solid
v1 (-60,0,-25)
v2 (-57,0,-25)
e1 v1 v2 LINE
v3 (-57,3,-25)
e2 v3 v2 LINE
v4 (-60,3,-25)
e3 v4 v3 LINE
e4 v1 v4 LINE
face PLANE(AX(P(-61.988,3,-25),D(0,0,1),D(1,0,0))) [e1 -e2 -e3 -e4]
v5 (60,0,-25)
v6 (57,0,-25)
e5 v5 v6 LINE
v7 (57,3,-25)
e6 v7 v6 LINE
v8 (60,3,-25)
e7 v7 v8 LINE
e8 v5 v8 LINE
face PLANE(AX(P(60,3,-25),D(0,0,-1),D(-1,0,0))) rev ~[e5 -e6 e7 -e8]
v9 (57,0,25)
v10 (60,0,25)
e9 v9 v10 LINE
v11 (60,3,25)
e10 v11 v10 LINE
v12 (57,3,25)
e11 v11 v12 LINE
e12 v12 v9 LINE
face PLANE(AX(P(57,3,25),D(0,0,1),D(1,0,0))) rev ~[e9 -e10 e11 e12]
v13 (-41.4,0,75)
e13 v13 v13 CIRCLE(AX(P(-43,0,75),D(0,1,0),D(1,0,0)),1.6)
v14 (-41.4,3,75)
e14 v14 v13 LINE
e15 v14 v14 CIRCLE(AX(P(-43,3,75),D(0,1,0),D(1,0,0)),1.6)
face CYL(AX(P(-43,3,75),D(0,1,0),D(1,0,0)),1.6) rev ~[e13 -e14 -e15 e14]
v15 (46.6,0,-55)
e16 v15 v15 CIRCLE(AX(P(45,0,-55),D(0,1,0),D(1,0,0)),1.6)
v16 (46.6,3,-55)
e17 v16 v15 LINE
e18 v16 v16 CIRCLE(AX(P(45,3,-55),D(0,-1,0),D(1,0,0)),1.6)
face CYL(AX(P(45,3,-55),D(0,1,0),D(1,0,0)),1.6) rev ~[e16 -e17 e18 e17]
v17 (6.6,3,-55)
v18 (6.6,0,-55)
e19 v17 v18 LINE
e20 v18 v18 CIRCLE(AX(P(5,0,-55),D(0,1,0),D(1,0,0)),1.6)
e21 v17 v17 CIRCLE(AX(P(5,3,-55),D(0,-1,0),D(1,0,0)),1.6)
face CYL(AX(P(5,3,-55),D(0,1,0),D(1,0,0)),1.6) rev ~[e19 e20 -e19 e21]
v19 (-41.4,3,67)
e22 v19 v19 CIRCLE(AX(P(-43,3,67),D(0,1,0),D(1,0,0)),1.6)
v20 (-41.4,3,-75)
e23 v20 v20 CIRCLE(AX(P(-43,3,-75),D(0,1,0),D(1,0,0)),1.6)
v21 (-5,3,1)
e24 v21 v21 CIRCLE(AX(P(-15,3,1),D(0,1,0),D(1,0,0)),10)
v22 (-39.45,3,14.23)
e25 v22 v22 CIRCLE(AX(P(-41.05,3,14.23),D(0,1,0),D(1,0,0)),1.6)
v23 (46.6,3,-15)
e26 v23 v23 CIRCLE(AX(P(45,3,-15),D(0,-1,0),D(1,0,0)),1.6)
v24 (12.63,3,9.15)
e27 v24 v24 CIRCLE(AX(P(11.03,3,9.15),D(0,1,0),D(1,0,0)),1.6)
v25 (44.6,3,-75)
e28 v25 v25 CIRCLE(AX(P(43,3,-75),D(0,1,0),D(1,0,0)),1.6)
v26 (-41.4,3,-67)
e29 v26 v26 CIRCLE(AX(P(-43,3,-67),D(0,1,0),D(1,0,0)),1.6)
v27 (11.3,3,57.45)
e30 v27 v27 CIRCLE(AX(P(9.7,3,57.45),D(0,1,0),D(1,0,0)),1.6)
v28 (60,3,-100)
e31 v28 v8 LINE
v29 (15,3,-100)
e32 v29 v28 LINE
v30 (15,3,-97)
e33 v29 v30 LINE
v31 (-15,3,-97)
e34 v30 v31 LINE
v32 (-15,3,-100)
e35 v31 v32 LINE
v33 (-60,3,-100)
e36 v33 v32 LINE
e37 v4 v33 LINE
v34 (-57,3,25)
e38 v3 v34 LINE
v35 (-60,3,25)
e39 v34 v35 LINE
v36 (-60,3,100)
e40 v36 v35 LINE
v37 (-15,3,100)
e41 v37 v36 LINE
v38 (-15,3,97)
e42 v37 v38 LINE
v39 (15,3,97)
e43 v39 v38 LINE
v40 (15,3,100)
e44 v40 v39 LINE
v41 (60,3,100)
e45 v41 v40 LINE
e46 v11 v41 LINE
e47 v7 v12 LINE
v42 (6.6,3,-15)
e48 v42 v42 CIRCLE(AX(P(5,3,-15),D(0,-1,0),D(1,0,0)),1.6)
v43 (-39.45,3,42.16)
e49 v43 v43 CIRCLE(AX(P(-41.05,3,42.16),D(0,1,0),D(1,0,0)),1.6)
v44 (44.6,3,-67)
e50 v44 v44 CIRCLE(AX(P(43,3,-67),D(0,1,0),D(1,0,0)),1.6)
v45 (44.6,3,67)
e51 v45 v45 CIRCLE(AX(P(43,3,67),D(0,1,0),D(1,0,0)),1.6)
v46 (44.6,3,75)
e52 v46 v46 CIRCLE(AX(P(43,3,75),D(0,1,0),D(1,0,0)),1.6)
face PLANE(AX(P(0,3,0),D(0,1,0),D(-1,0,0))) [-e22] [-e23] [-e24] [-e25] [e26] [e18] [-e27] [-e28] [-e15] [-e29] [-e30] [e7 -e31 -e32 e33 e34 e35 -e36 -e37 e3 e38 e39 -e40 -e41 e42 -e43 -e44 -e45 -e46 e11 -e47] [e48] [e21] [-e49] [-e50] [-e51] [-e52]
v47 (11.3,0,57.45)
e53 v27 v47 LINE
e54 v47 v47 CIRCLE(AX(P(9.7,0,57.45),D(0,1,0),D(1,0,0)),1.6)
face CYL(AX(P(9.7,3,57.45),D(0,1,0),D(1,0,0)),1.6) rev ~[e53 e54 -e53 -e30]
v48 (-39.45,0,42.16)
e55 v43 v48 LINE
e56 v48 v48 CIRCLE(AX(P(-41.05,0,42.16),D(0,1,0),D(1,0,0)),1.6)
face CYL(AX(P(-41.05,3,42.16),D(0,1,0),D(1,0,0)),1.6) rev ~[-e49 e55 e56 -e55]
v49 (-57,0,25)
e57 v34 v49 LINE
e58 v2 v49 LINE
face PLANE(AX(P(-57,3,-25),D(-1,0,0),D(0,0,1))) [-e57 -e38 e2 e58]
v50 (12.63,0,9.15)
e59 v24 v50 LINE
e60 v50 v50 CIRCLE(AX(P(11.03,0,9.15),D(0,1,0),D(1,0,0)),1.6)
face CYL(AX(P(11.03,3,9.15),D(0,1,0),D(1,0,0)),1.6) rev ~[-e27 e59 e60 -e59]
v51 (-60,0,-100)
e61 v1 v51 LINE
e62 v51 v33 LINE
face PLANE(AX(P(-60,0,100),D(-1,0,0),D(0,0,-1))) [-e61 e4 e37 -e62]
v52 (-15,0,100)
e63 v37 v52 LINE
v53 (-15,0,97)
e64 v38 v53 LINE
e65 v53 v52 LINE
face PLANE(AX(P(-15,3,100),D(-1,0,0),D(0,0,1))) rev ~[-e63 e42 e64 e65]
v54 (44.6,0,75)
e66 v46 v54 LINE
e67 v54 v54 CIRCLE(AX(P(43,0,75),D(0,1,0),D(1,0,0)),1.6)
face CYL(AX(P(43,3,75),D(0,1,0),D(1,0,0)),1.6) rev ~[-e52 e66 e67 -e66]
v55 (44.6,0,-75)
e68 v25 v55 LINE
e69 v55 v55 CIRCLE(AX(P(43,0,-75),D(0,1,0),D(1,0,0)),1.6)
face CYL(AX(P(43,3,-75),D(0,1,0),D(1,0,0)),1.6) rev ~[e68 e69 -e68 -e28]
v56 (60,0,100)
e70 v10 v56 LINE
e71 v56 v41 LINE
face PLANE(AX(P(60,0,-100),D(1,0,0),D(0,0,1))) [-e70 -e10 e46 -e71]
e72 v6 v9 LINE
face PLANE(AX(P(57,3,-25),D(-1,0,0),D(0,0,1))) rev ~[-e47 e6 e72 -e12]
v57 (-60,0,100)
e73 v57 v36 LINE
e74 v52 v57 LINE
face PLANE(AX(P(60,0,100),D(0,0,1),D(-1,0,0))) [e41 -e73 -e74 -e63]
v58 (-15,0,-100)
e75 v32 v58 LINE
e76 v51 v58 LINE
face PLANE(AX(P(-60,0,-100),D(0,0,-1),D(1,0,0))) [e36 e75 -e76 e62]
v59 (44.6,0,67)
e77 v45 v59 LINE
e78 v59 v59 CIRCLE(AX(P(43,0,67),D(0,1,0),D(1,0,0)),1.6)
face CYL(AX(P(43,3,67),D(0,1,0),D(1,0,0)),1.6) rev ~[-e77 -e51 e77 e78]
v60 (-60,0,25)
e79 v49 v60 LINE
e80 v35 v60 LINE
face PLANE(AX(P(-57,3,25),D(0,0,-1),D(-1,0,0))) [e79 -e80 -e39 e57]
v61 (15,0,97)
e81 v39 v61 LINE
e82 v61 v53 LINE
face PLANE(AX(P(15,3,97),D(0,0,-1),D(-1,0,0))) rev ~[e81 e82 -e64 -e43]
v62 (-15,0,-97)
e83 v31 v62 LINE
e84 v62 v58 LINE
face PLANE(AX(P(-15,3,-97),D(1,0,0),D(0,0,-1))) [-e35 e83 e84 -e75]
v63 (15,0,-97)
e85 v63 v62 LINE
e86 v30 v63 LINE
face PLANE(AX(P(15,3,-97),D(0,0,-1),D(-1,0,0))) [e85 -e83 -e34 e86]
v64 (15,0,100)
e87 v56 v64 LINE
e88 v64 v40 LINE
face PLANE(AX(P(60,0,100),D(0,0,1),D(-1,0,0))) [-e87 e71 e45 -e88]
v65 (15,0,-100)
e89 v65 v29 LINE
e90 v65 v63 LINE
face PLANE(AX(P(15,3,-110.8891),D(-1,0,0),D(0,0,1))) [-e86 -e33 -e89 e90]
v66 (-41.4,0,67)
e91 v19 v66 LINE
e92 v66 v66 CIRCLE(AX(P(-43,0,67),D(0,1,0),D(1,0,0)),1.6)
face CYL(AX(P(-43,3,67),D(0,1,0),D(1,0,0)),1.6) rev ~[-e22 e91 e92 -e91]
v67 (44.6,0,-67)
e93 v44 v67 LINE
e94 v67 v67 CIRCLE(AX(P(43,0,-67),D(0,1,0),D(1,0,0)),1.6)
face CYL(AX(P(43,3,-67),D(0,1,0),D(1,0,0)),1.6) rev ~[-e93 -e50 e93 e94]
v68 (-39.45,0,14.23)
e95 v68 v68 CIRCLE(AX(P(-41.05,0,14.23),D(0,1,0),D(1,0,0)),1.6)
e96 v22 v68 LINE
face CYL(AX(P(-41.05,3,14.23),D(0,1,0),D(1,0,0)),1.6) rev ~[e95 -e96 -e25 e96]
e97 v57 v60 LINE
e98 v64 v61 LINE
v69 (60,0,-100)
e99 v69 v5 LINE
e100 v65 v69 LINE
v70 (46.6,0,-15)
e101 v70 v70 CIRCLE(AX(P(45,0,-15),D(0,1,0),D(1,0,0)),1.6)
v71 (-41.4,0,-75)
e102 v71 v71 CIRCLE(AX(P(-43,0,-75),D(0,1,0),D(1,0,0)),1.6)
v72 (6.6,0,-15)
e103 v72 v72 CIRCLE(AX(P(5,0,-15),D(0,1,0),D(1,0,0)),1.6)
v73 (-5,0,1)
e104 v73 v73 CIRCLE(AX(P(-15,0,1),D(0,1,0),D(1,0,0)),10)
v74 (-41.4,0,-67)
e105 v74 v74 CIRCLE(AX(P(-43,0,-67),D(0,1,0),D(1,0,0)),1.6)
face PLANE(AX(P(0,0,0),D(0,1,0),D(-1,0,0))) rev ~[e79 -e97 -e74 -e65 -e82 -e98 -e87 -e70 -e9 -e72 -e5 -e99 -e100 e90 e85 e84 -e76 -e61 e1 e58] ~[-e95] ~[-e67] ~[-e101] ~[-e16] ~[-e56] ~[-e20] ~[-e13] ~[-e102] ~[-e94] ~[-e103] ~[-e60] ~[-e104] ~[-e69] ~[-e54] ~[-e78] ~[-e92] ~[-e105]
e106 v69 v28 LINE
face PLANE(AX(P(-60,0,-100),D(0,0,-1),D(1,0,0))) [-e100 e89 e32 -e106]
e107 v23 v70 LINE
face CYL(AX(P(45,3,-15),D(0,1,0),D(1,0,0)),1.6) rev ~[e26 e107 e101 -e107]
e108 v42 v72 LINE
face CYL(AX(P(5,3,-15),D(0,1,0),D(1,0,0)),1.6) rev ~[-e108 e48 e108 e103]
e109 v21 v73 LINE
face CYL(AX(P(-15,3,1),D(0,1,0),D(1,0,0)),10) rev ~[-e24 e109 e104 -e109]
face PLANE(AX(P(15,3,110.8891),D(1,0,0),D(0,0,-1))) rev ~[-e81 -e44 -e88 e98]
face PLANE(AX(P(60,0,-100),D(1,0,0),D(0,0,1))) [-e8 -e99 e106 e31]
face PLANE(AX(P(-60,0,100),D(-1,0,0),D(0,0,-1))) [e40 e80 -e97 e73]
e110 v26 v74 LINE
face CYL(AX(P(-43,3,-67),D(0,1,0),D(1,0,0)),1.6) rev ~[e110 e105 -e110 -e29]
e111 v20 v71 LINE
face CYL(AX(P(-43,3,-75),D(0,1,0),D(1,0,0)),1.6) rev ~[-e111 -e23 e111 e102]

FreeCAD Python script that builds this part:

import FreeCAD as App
import Part
import Sketcher
from FreeCAD import Vector
Q = App.Units.Quantity

doc = App.newDocument("Part")
params = doc.addObject("Spreadsheet::Sheet", "Params")
for row, (alias, value) in enumerate([
    ("sketch1_width", "120 mm"),
    ("sketch1_height", "200 mm"),
    ("pad1_length", "3 mm"),
    ("sketch2_diameter", "3.2 mm"),
    ("sketch3_diameter", "20 mm"),
    ("sketch3_diameter2", "3.2 mm"),
    ("sketch4_height", "50 mm"),
    ("sketch5_width", "30 mm"),
    ("sketch6_diameter", "3.2 mm"),
], start=1):
    params.set(f"A{row}", alias)
    params.set(f"B{row}", "=" + value)
    params.setAlias(f"B{row}", alias)

body = doc.addObject("PartDesign::Body", "Body")

# Sketch on XZ plane
sketch1 = body.newObject("Sketcher::SketchObject", "Sketch")
sketch1.AttachmentSupport = (doc.getObject("XZ_Plane"), [""])
sketch1.MapMode = "FlatFace"
sketch1.addGeometry([
    Part.LineSegment(Vector(60, -100, 0), Vector(-60, -100, 0)),
    Part.LineSegment(Vector(-60, -100, 0), Vector(-60, 100, 0)),
    Part.LineSegment(Vector(-60, 100, 0), Vector(60, 100, 0)),
    Part.LineSegment(Vector(60, 100, 0), Vector(60, -100, 0)),
], False)
sketch1.addConstraint([
    Sketcher.Constraint("Coincident", 0, 2, 1, 1),
    Sketcher.Constraint("Coincident", 1, 2, 2, 1),
    Sketcher.Constraint("Coincident", 2, 2, 3, 1),
    Sketcher.Constraint("Coincident", 3, 2, 0, 1),
    Sketcher.Constraint("Horizontal", 0),
    Sketcher.Constraint("Vertical", 1),
    Sketcher.Constraint("Horizontal", 2),
    Sketcher.Constraint("Vertical", 3),
    Sketcher.Constraint("Symmetric", 0, 2, 2, 2, -1, 1),
    Sketcher.Constraint("DistanceX", 0, 2, 0, 1, Q("120 mm")),
    Sketcher.Constraint("DistanceY", 1, 1, 1, 2, Q("200 mm")),
])
sketch1.setExpression("Constraints[9]", "Params.sketch1_width")
sketch1.setExpression("Constraints[10]", "Params.sketch1_height")
pad1 = body.newObject("PartDesign::Pad", "Pad")
pad1.Profile = sketch1
pad1.setExpression("Length", "Params.pad1_length")
pad1.Reversed = True

# Sketch on XZ plane
sketch2 = body.newObject("Sketcher::SketchObject", "Sketch001")
sketch2.AttachmentSupport = (doc.getObject("XZ_Plane"), [""])
sketch2.MapMode = "FlatFace"
sketch2.AttachmentOffset = App.Placement(Vector(0, 0, -3), App.Rotation())
sketch2.addGeometry([
    Part.Circle(Vector(9.7, 57.45, 0), Vector(0, 0, 1), 1.6),
    Part.Circle(Vector(11.03, 9.15, 0), Vector(0, 0, 1), 1.6),
    Part.Circle(Vector(-41.05, 42.16, 0), Vector(0, 0, 1), 1.6),
    Part.Circle(Vector(-41.05, 14.23, 0), Vector(0, 0, 1), 1.6),
], False)
sketch2.addConstraint([
    Sketcher.Constraint("Equal", 0, 1),
    Sketcher.Constraint("Equal", 1, 2),
    Sketcher.Constraint("Equal", 2, 3),
    Sketcher.Constraint("Vertical", 2, 3, 3, 3),
    Sketcher.Constraint("Diameter", 0, Q("3.2 mm")),
    Sketcher.Constraint("DistanceX", -1, 1, 0, 3, Q("9.7 mm")),
    Sketcher.Constraint("DistanceY", 1, 3, 0, 3, Q("48.3 mm")),
    Sketcher.Constraint("DistanceY", -1, 1, 0, 3, Q("57.45 mm")),
    Sketcher.Constraint("DistanceX", -1, 1, 1, 3, Q("11.03 mm")),
    Sketcher.Constraint("DistanceX", 2, 3, -1, 1, Q("41.05 mm")),
    Sketcher.Constraint("DistanceY", -1, 1, 2, 3, Q("42.16 mm")),
    Sketcher.Constraint("DistanceY", -1, 1, 3, 3, Q("14.23 mm")),
])
sketch2.setExpression("Constraints[4]", "Params.sketch2_diameter")
pocket1 = body.newObject("PartDesign::Pocket", "Pocket")
pocket1.Profile = sketch2
pocket1.Type = "ThroughAll"
pocket1.Reversed = True

# Sketch on XZ plane
sketch3 = body.newObject("Sketcher::SketchObject", "Sketch002")
sketch3.AttachmentSupport = (doc.getObject("XZ_Plane"), [""])
sketch3.MapMode = "FlatFace"
sketch3.AttachmentOffset = App.Placement(Vector(0, 0, -3), App.Rotation())
sketch3.addGeometry([
    Part.Circle(Vector(5, -15, 0), Vector(0, 0, 1), 1.6),  # 0
    Part.Circle(Vector(45, -15, 0), Vector(0, 0, 1), 1.6),  # 1
    Part.Circle(Vector(5, -55, 0), Vector(0, 0, 1), 1.6),  # 2
    Part.Circle(Vector(45, -55, 0), Vector(0, 0, 1), 1.6),  # 3
    Part.Circle(Vector(-15, 1, 0), Vector(0, 0, 1), 10),  # 4
], False)
sketch3.addConstraint([
    Sketcher.Constraint("Equal", 0, 1),
    Sketcher.Constraint("Equal", 1, 2),
    Sketcher.Constraint("Equal", 2, 3),
    Sketcher.Constraint("Horizontal", 0, 3, 1, 3),
    Sketcher.Constraint("Horizontal", 2, 3, 3, 3),
    Sketcher.Constraint("Vertical", 0, 3, 2, 3),
    Sketcher.Constraint("Vertical", 1, 3, 3, 3),
    Sketcher.Constraint("Diameter", 4, Q("20 mm")),
    Sketcher.Constraint("Diameter", 0, Q("3.2 mm")),
    Sketcher.Constraint("DistanceY", 0, 3, -1, 1, Q("15 mm")),
    Sketcher.Constraint("DistanceX", -1, 1, 1, 3, Q("45 mm")),
    Sketcher.Constraint("DistanceX", 4, 3, -1, 1, Q("15 mm")),
    Sketcher.Constraint("DistanceX", 0, 3, 1, 3, Q("40 mm")),
    Sketcher.Constraint("DistanceY", 2, 3, 0, 3, Q("40 mm")),
    Sketcher.Constraint("DistanceY", -1, 1, 4, 3, Q("1 mm")),
])
sketch3.setExpression("Constraints[7]", "Params.sketch3_diameter")
sketch3.setExpression("Constraints[8]", "Params.sketch3_diameter2")
pocket2 = body.newObject("PartDesign::Pocket", "Pocket001")
pocket2.Profile = sketch3
pocket2.Type = "ThroughAll"
pocket2.Reversed = True

# Sketch on XZ plane
sketch4 = body.newObject("Sketcher::SketchObject", "Sketch003")
sketch4.AttachmentSupport = (doc.getObject("XZ_Plane"), [""])
sketch4.MapMode = "FlatFace"
sketch4.AttachmentOffset = App.Placement(Vector(0, 0, -3), App.Rotation())
sketch4.addGeometry([
    Part.LineSegment(Vector(57, -25, 0), Vector(57, 25, 0)),  # 0
    Part.LineSegment(Vector(57, 25, 0), Vector(61.988, 25, 0)),  # 1
    Part.LineSegment(Vector(61.988, 25, 0), Vector(61.988, -25, 0)),  # 2
    Part.LineSegment(Vector(61.988, -25, 0), Vector(57, -25, 0)),  # 3
    Part.LineSegment(Vector(-61.988, 25, 0), Vector(-57, 25, 0)),  # 4
    Part.LineSegment(Vector(-57, 25, 0), Vector(-57, -25, 0)),  # 5
    Part.LineSegment(Vector(-57, -25, 0), Vector(-61.988, -25, 0)),  # 6
    Part.LineSegment(Vector(-61.988, -25, 0), Vector(-61.988, 25, 0)),  # 7
], False)
sketch4.addConstraint([
    Sketcher.Constraint("Coincident", 0, 2, 1, 1),
    Sketcher.Constraint("Coincident", 1, 2, 2, 1),
    Sketcher.Constraint("Coincident", 2, 2, 3, 1),
    Sketcher.Constraint("Coincident", 3, 2, 0, 1),
    Sketcher.Constraint("Coincident", 4, 2, 5, 1),
    Sketcher.Constraint("Coincident", 5, 2, 6, 1),
    Sketcher.Constraint("Coincident", 6, 2, 7, 1),
    Sketcher.Constraint("Coincident", 7, 2, 4, 1),
    Sketcher.Constraint("Vertical", 0),
    Sketcher.Constraint("Horizontal", 1),
    Sketcher.Constraint("Vertical", 2),
    Sketcher.Constraint("Horizontal", 3),
    Sketcher.Constraint("Horizontal", 4),
    Sketcher.Constraint("Vertical", 5),
    Sketcher.Constraint("Horizontal", 6),
    Sketcher.Constraint("Vertical", 7),
    Sketcher.Constraint("Symmetric", 3, 2, 4, 2, -1, 1),
    Sketcher.Constraint("Symmetric", 1, 2, 6, 2, -1, 1),
    Sketcher.Constraint("Horizontal", 1, 2, 4, 2),
    Sketcher.Constraint("DistanceY", 0, 1, 0, 2, Q("50 mm")),
    Sketcher.Constraint("DistanceX", -1, 1, 0, 2, Q("57 mm")),
    Sketcher.Constraint("DistanceX", 1, 1, 1, 2, Q("4.988 mm")),
])
sketch4.setExpression("Constraints[19]", "Params.sketch4_height")
pocket3 = body.newObject("PartDesign::Pocket", "Pocket002")
pocket3.Profile = sketch4
pocket3.Type = "ThroughAll"
pocket3.Reversed = True

# Sketch on XZ plane
sketch5 = body.newObject("Sketcher::SketchObject", "Sketch004")
sketch5.AttachmentSupport = (doc.getObject("XZ_Plane"), [""])
sketch5.MapMode = "FlatFace"
sketch5.AttachmentOffset = App.Placement(Vector(0, 0, -3), App.Rotation())
sketch5.addGeometry([
    Part.LineSegment(Vector(-15, 110.8891, 0), Vector(15, 110.8891, 0)),  # 0
    Part.LineSegment(Vector(15, 110.8891, 0), Vector(15, 97, 0)),  # 1
    Part.LineSegment(Vector(15, 97, 0), Vector(-15, 97, 0)),  # 2
    Part.LineSegment(Vector(-15, 97, 0), Vector(-15, 110.8891, 0)),  # 3
    Part.LineSegment(Vector(15, -110.8891, 0), Vector(-15, -110.8891, 0)),  # 4
    Part.LineSegment(Vector(-15, -110.8891, 0), Vector(-15, -97, 0)),  # 5
    Part.LineSegment(Vector(-15, -97, 0), Vector(15, -97, 0)),  # 6
    Part.LineSegment(Vector(15, -97, 0), Vector(15, -110.8891, 0)),  # 7
], False)
sketch5.addConstraint([
    Sketcher.Constraint("Coincident", 0, 2, 1, 1),
    Sketcher.Constraint("Coincident", 1, 2, 2, 1),
    Sketcher.Constraint("Coincident", 2, 2, 3, 1),
    Sketcher.Constraint("Coincident", 3, 2, 0, 1),
    Sketcher.Constraint("Coincident", 4, 2, 5, 1),
    Sketcher.Constraint("Coincident", 5, 2, 6, 1),
    Sketcher.Constraint("Coincident", 6, 2, 7, 1),
    Sketcher.Constraint("Coincident", 7, 2, 4, 1),
    Sketcher.Constraint("Horizontal", 0),
    Sketcher.Constraint("Vertical", 1),
    Sketcher.Constraint("Horizontal", 2),
    Sketcher.Constraint("Vertical", 3),
    Sketcher.Constraint("Horizontal", 4),
    Sketcher.Constraint("Vertical", 5),
    Sketcher.Constraint("Horizontal", 6),
    Sketcher.Constraint("Vertical", 7),
    Sketcher.Constraint("Symmetric", 0, 2, 4, 2, -1, 1),
    Sketcher.Constraint("Symmetric", 2, 2, 6, 2, -1, 1),
    Sketcher.Constraint("Vertical", 3, 2, 4, 2),
    Sketcher.Constraint("DistanceX", 0, 1, 0, 2, Q("30 mm")),
    Sketcher.Constraint("DistanceY", -1, 1, 1, 2, Q("97 mm")),
    Sketcher.Constraint("DistanceY", 1, 2, 1, 1, Q("13.889 mm")),
])
sketch5.setExpression("Constraints[19]", "Params.sketch5_width")
pocket4 = body.newObject("PartDesign::Pocket", "Pocket003")
pocket4.Profile = sketch5
pocket4.Type = "ThroughAll"
pocket4.Reversed = True

# Sketch on XZ plane
sketch6 = body.newObject("Sketcher::SketchObject", "Sketch005")
sketch6.AttachmentSupport = (doc.getObject("XZ_Plane"), [""])
sketch6.MapMode = "FlatFace"
sketch6.AttachmentOffset = App.Placement(Vector(0, 0, -3), App.Rotation())
sketch6.addGeometry([
    Part.Circle(Vector(-43, 75, 0), Vector(0, 0, 1), 1.6),  # 0
    Part.Circle(Vector(-43, 67, 0), Vector(0, 0, 1), 1.6),  # 1
    Part.Circle(Vector(-43, -75, 0), Vector(0, 0, 1), 1.6),  # 2
    Part.Circle(Vector(-43, -67, 0), Vector(0, 0, 1), 1.6),  # 3
    Part.Circle(Vector(43, 75, 0), Vector(0, 0, 1), 1.6),  # 4
    Part.Circle(Vector(43, 67, 0), Vector(0, 0, 1), 1.6),  # 5
    Part.Circle(Vector(43, -75, 0), Vector(0, 0, 1), 1.6),  # 6
    Part.Circle(Vector(43, -67, 0), Vector(0, 0, 1), 1.6),  # 7
], False)
sketch6.addConstraint([
    Sketcher.Constraint("Equal", 0, 1),
    Sketcher.Constraint("Equal", 1, 2),
    Sketcher.Constraint("Equal", 2, 3),
    Sketcher.Constraint("Equal", 3, 4),
    Sketcher.Constraint("Equal", 4, 5),
    Sketcher.Constraint("Equal", 5, 6),
    Sketcher.Constraint("Equal", 6, 7),
    Sketcher.Constraint("Symmetric", 2, 3, 4, 3, -1, 1),
    Sketcher.Constraint("Symmetric", 3, 3, 5, 3, -1, 1),
    Sketcher.Constraint("Symmetric", 0, 3, 6, 3, -1, 1),
    Sketcher.Constraint("Symmetric", 1, 3, 7, 3, -1, 1),
    Sketcher.Constraint("Symmetric", 0, 3, 4, 3, -2),
    Sketcher.Constraint("Symmetric", 1, 3, 5, 3, -2),
    Sketcher.Constraint("Vertical", 0, 3, 1, 3),
    Sketcher.Constraint("Diameter", 0, Q("3.2 mm")),
    Sketcher.Constraint("DistanceY", 1, 3, 0, 3, Q("8 mm")),
    Sketcher.Constraint("DistanceX", 0, 3, -1, 1, Q("43 mm")),
    Sketcher.Constraint("DistanceY", -1, 1, 0, 3, Q("75 mm")),
])
sketch6.setExpression("Constraints[14]", "Params.sketch6_diameter")
pocket5 = body.newObject("PartDesign::Pocket", "Pocket004")
pocket5.Profile = sketch6
pocket5.Type = "ThroughAll"
pocket5.Reversed = True

doc.recompute()
